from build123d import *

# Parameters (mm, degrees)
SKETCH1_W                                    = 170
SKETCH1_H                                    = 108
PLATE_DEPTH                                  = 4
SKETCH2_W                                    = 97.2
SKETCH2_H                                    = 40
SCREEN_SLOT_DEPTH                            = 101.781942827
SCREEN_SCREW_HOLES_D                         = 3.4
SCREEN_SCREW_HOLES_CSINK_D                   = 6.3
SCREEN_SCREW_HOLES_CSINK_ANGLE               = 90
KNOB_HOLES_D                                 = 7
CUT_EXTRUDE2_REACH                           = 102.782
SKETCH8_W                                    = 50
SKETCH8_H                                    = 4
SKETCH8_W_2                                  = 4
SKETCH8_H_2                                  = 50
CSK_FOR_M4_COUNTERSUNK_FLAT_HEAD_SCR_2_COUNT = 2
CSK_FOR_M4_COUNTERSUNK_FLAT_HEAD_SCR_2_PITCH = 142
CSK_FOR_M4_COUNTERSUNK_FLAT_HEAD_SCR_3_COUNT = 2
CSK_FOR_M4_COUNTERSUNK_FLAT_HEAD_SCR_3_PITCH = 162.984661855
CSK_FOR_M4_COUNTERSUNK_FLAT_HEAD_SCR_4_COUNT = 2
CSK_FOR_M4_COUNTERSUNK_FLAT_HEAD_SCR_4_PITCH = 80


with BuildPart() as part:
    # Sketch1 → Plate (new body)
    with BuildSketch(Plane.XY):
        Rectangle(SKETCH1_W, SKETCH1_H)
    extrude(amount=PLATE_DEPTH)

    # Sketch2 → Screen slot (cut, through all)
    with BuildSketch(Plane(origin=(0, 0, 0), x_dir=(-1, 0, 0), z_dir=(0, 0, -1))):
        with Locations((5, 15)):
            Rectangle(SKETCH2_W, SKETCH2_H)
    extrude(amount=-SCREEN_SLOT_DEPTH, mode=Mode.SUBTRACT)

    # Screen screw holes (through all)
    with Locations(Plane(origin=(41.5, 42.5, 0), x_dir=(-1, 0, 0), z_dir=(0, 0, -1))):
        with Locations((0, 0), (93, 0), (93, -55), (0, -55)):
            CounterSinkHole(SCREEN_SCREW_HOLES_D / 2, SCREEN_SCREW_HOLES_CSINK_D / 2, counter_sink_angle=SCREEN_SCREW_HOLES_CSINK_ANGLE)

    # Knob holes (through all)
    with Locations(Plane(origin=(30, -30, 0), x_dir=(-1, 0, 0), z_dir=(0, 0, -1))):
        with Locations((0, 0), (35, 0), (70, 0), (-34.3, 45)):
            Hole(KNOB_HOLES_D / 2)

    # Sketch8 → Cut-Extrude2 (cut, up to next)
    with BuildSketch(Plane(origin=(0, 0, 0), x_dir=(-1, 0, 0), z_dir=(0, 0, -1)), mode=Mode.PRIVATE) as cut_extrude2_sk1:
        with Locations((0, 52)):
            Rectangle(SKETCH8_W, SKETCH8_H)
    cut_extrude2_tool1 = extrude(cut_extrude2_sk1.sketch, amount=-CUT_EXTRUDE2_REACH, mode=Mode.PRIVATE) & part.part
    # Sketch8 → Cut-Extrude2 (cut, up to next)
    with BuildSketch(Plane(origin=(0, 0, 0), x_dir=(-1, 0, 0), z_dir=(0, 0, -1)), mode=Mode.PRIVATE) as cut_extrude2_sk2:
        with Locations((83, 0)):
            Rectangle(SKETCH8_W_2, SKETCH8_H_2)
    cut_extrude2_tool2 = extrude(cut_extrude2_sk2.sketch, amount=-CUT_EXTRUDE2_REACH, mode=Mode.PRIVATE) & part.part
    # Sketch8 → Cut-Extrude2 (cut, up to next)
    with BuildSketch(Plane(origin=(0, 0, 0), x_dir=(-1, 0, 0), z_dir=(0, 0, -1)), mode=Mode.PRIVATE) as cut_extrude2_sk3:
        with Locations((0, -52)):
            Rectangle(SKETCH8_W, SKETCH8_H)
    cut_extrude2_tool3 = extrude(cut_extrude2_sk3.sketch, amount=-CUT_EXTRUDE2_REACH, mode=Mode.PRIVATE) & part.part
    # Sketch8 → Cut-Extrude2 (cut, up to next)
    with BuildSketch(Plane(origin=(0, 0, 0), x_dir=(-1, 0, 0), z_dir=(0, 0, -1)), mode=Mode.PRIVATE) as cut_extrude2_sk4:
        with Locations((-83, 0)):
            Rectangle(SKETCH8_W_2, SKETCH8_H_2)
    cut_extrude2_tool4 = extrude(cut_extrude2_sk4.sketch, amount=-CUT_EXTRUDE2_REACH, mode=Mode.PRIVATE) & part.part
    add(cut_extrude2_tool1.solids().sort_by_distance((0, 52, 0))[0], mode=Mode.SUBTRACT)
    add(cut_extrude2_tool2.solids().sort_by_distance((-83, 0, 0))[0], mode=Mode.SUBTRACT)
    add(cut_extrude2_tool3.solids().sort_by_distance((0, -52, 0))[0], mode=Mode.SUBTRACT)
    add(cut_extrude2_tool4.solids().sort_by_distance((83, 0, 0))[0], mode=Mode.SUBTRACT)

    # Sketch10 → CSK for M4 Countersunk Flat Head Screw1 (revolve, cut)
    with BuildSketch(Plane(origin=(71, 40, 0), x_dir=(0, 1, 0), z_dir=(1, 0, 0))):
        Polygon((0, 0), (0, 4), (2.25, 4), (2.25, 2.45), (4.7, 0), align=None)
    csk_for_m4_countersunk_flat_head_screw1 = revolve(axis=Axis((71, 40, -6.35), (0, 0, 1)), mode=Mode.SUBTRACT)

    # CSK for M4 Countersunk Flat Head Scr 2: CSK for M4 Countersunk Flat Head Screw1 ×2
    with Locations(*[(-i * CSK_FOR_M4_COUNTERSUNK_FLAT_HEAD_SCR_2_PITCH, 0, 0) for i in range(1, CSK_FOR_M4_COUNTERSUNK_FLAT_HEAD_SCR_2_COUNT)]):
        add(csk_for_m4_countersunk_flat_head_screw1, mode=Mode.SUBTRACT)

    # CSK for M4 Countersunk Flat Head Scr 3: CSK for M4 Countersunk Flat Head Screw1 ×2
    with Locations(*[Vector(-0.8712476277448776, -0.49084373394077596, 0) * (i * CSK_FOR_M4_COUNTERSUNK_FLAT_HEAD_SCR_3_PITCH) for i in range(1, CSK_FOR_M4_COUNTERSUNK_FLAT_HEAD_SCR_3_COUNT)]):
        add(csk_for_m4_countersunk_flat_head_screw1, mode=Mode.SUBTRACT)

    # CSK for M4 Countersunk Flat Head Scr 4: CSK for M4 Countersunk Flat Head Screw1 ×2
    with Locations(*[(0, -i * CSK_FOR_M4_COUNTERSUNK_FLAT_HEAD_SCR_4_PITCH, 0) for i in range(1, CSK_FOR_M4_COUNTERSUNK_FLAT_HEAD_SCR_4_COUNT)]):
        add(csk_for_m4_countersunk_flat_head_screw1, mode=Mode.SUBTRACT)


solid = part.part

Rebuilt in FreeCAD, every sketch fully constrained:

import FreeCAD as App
import Part
import Sketcher

V = App.Vector
Q = App.Units.Quantity

doc = App.newDocument("Part")
body = doc.addObject("PartDesign::Body", "Body")

sketch1 = body.newObject("Sketcher::SketchObject", "Sketch")
sketch1.AttachmentSupport = (doc.getObject("XY_Plane"), [""])
sketch1.MapMode = "FlatFace"
sketch1.addGeometry(Part.LineSegment(V(-85, 54, 0), V(-85, -54, 0)), False)
sketch1.addGeometry(Part.LineSegment(V(-85, -54, 0), V(85, -54, 0)), False)
sketch1.addGeometry(Part.LineSegment(V(85, -54, 0), V(85, 54, 0)), False)
sketch1.addGeometry(Part.LineSegment(V(85, 54, 0), V(-85, 54, 0)), False)
sketch1.addConstraint(Sketcher.Constraint("Coincident", 0, 2, 1, 1))
sketch1.addConstraint(Sketcher.Constraint("Coincident", 1, 2, 2, 1))
sketch1.addConstraint(Sketcher.Constraint("Coincident", 2, 2, 3, 1))
sketch1.addConstraint(Sketcher.Constraint("Coincident", 3, 2, 0, 1))
sketch1.addConstraint(Sketcher.Constraint("Vertical", 0))
sketch1.addConstraint(Sketcher.Constraint("Horizontal", 1))
sketch1.addConstraint(Sketcher.Constraint("Vertical", 2))
sketch1.addConstraint(Sketcher.Constraint("Horizontal", 3))
sketch1.addConstraint(Sketcher.Constraint("Symmetric", 0, 2, 2, 2, -1, 1))
sketch1.addConstraint(Sketcher.Constraint("DistanceX", 1, 1, 1, 2, Q("170 mm")))
sketch1.addConstraint(Sketcher.Constraint("DistanceY", 0, 2, 0, 1, Q("108 mm")))
pad1 = body.newObject("PartDesign::Pad", "Pad")
pad1.Profile = sketch1
pad1.Length = 4

sketch2 = body.newObject("Sketcher::SketchObject", "Sketch001")
sketch2.AttachmentSupport = (doc.getObject("XY_Plane"), [""])
sketch2.MapMode = "FlatFace"
sketch2.addGeometry(Part.LineSegment(V(43.6, 35, 0), V(43.6, -5, 0)), False)
sketch2.addGeometry(Part.LineSegment(V(43.6, -5, 0), V(-53.6, -5, 0)), False)
sketch2.addGeometry(Part.LineSegment(V(-53.6, -5, 0), V(-53.6, 35, 0)), False)
sketch2.addGeometry(Part.LineSegment(V(-53.6, 35, 0), V(43.6, 35, 0)), False)
sketch2.addConstraint(Sketcher.Constraint("Coincident", 0, 2, 1, 1))
sketch2.addConstraint(Sketcher.Constraint("Coincident", 1, 2, 2, 1))
sketch2.addConstraint(Sketcher.Constraint("Coincident", 2, 2, 3, 1))
sketch2.addConstraint(Sketcher.Constraint("Coincident", 3, 2, 0, 1))
sketch2.addConstraint(Sketcher.Constraint("Vertical", 0))
sketch2.addConstraint(Sketcher.Constraint("Horizontal", 1))
sketch2.addConstraint(Sketcher.Constraint("Vertical", 2))
sketch2.addConstraint(Sketcher.Constraint("Horizontal", 3))
sketch2.addConstraint(Sketcher.Constraint("DistanceY", 0, 2, 0, 1, Q("40 mm")))
sketch2.addConstraint(Sketcher.Constraint("DistanceX", 1, 2, 1, 1, Q("97.2 mm")))
sketch2.addConstraint(Sketcher.Constraint("DistanceY", 0, 2, -1, 1, Q("5 mm")))
sketch2.addConstraint(Sketcher.Constraint("DistanceX", -1, 1, 0, 2, Q("43.6 mm")))
pocket1 = body.newObject("PartDesign::Pocket", "Pocket")
pocket1.Profile = sketch2
pocket1.Type = "ThroughAll"
pocket1.Reversed = True

sketch3 = body.newObject("Sketcher::SketchObject", "Sketch002")
sketch3.AttachmentSupport = (doc.getObject("XY_Plane"), [""])
sketch3.MapMode = "FlatFace"
sketch3.addGeometry(Part.Circle(V(41.5, 42.5, 0), V(0, 0, 1), 1.7), False)
sketch3.addGeometry(Part.Circle(V(-51.5, 42.5, 0), V(0, 0, 1), 1.7), False)
sketch3.addGeometry(Part.Circle(V(-51.5, -12.5, 0), V(0, 0, 1), 1.7), False)
sketch3.addGeometry(Part.Circle(V(41.5, -12.5, 0), V(0, 0, 1), 1.7), False)
sketch3.addConstraint(Sketcher.Constraint("Equal", 0, 1))
sketch3.addConstraint(Sketcher.Constraint("Equal", 1, 2))
sketch3.addConstraint(Sketcher.Constraint("Equal", 2, 3))
sketch3.addConstraint(Sketcher.Constraint("Horizontal", 0, 3, 1, 3))
sketch3.addConstraint(Sketcher.Constraint("Horizontal", 2, 3, 3, 3))
sketch3.addConstraint(Sketcher.Constraint("Vertical", 1, 3, 2, 3))
sketch3.addConstraint(Sketcher.Constraint("Vertical", 0, 3, 3, 3))
sketch3.addConstraint(Sketcher.Constraint("Diameter", 0, Q("3.4 mm")))
sketch3.addConstraint(Sketcher.Constraint("DistanceX", 1, 3, 0, 3, Q("93 mm")))
sketch3.addConstraint(Sketcher.Constraint("DistanceY", 2, 3, 1, 3, Q("55 mm")))
sketch3.addConstraint(Sketcher.Constraint("DistanceX", -1, 1, 0, 3, Q("41.5 mm")))
sketch3.addConstraint(Sketcher.Constraint("DistanceY", -1, 1, 0, 3, Q("42.5 mm")))
doc.recompute()
hole = body.newObject("PartDesign::Hole", "Hole")
hole.Profile = sketch3
hole.ThreadType = "None"
hole.Diameter = 3.4
hole.DepthType = "ThroughAll"
hole.HoleCutType = "Countersink"
hole.HoleCutDiameter = 6.3
hole.HoleCutCountersinkAngle = 90
hole.Reversed = True

sketch4 = body.newObject("Sketcher::SketchObject", "Sketch003")
sketch4.AttachmentSupport = (doc.getObject("XY_Plane"), [""])
sketch4.MapMode = "FlatFace"
sketch4.addGeometry(Part.Circle(V(30, -30, 0), V(0, 0, 1), 3.5), False)
sketch4.addGeometry(Part.Circle(V(-5, -30, 0), V(0, 0, 1), 3.5), False)
sketch4.addGeometry(Part.Circle(V(-40, -30, 0), V(0, 0, 1), 3.5), False)
sketch4.addGeometry(Part.Circle(V(64.3, 15, 0), V(0, 0, 1), 3.5), False)
sketch4.addConstraint(Sketcher.Constraint("Equal", 0, 1))
sketch4.addConstraint(Sketcher.Constraint("Equal", 1, 2))
sketch4.addConstraint(Sketcher.Constraint("Equal", 2, 3))
sketch4.addConstraint(Sketcher.Constraint("Horizontal", 0, 3, 1, 3))
sketch4.addConstraint(Sketcher.Constraint("Horizontal", 1, 3, 2, 3))
sketch4.addConstraint(Sketcher.Constraint("Diameter", 0, Q("7 mm")))
sketch4.addConstraint(Sketcher.Constraint("DistanceX", -1, 1, 0, 3, Q("30 mm")))
sketch4.addConstraint(Sketcher.Constraint("DistanceY", 0, 3, -1, 1, Q("30 mm")))
sketch4.addConstraint(Sketcher.Constraint("DistanceX", 1, 3, -1, 1, Q("5 mm")))
sketch4.addConstraint(Sketcher.Constraint("DistanceX", 2, 3, -1, 1, Q("40 mm")))
sketch4.addConstraint(Sketcher.Constraint("DistanceY", -1, 1, 3, 3, Q("15 mm")))
sketch4.addConstraint(Sketcher.Constraint("DistanceX", -1, 1, 3, 3, Q("64.3 mm")))
doc.recompute()
hole2 = body.newObject("PartDesign::Hole", "Hole001")
hole2.Profile = sketch4
hole2.ThreadType = "None"
hole2.Diameter = 7
hole2.DepthType = "ThroughAll"
hole2.Reversed = True

sketch5 = body.newObject("Sketcher::SketchObject", "Sketch004")
sketch5.AttachmentSupport = (doc.getObject("XY_Plane"), [""])
sketch5.MapMode = "FlatFace"
sketch5.addGeometry(Part.LineSegment(V(25, 54, 0), V(25, 50, 0)), False)
sketch5.addGeometry(Part.LineSegment(V(25, 50, 0), V(-25, 50, 0)), False)
sketch5.addGeometry(Part.LineSegment(V(-25, 50, 0), V(-25, 54, 0)), False)
sketch5.addGeometry(Part.LineSegment(V(-25, 54, 0), V(25, 54, 0)), False)
sketch5.addConstraint(Sketcher.Constraint("Coincident", 0, 2, 1, 1))
sketch5.addConstraint(Sketcher.Constraint("Coincident", 1, 2, 2, 1))
sketch5.addConstraint(Sketcher.Constraint("Coincident", 2, 2, 3, 1))
sketch5.addConstraint(Sketcher.Constraint("Coincident", 3, 2, 0, 1))
sketch5.addConstraint(Sketcher.Constraint("Vertical", 0))
sketch5.addConstraint(Sketcher.Constraint("Horizontal", 1))
sketch5.addConstraint(Sketcher.Constraint("Vertical", 2))
sketch5.addConstraint(Sketcher.Constraint("Horizontal", 3))
sketch5.addConstraint(Sketcher.Constraint("DistanceX", 1, 2, 1, 1, Q("50 mm")))
sketch5.addConstraint(Sketcher.Constraint("DistanceY", 0, 2, 0, 1, Q("4 mm")))
sketch5.addConstraint(Sketcher.Constraint("DistanceX", -1, 1, 0, 2, Q("25 mm")))
sketch5.addConstraint(Sketcher.Constraint("DistanceY", -1, 1, 0, 2, Q("50 mm")))
pocket2 = body.newObject("PartDesign::Pocket", "Pocket001")
pocket2.Profile = sketch5
pocket2.Type = "UpToFirst"
pocket2.Reversed = True

sketch6 = body.newObject("Sketcher::SketchObject", "Sketch005")
sketch6.AttachmentSupport = (doc.getObject("XY_Plane"), [""])
sketch6.MapMode = "FlatFace"
sketch6.addGeometry(Part.LineSegment(V(-81, 25, 0), V(-81, -25, 0)), False)
sketch6.addGeometry(Part.LineSegment(V(-81, -25, 0), V(-85, -25, 0)), False)
sketch6.addGeometry(Part.LineSegment(V(-85, -25, 0), V(-85, 25, 0)), False)
sketch6.addGeometry(Part.LineSegment(V(-85, 25, 0), V(-81, 25, 0)), False)
sketch6.addConstraint(Sketcher.Constraint("Coincident", 0, 2, 1, 1))
sketch6.addConstraint(Sketcher.Constraint("Coincident", 1, 2, 2, 1))
sketch6.addConstraint(Sketcher.Constraint("Coincident", 2, 2, 3, 1))
sketch6.addConstraint(Sketcher.Constraint("Coincident", 3, 2, 0, 1))
sketch6.addConstraint(Sketcher.Constraint("Vertical", 0))
sketch6.addConstraint(Sketcher.Constraint("Horizontal", 1))
sketch6.addConstraint(Sketcher.Constraint("Vertical", 2))
sketch6.addConstraint(Sketcher.Constraint("Horizontal", 3))
sketch6.addConstraint(Sketcher.Constraint("DistanceX", 1, 2, 1, 1, Q("4 mm")))
sketch6.addConstraint(Sketcher.Constraint("DistanceY", 0, 2, 0, 1, Q("50 mm")))
sketch6.addConstraint(Sketcher.Constraint("DistanceX", 0, 2, -1, 1, Q("81 mm")))
sketch6.addConstraint(Sketcher.Constraint("DistanceY", 0, 2, -1, 1, Q("25 mm")))
pocket3 = body.newObject("PartDesign::Pocket", "Pocket002")
pocket3.Profile = sketch6
pocket3.Type = "UpToFirst"
pocket3.Reversed = True

sketch7 = body.newObject("Sketcher::SketchObject", "Sketch006")
sketch7.AttachmentSupport = (doc.getObject("XY_Plane"), [""])
sketch7.MapMode = "FlatFace"
sketch7.addGeometry(Part.LineSegment(V(25, -50, 0), V(25, -54, 0)), False)
sketch7.addGeometry(Part.LineSegment(V(25, -54, 0), V(-25, -54, 0)), False)
sketch7.addGeometry(Part.LineSegment(V(-25, -54, 0), V(-25, -50, 0)), False)
sketch7.addGeometry(Part.LineSegment(V(-25, -50, 0), V(25, -50, 0)), False)
sketch7.addConstraint(Sketcher.Constraint("Coincident", 0, 2, 1, 1))
sketch7.addConstraint(Sketcher.Constraint("Coincident", 1, 2, 2, 1))
sketch7.addConstraint(Sketcher.Constraint("Coincident", 2, 2, 3, 1))
sketch7.addConstraint(Sketcher.Constraint("Coincident", 3, 2, 0, 1))
sketch7.addConstraint(Sketcher.Constraint("Vertical", 0))
sketch7.addConstraint(Sketcher.Constraint("Horizontal", 1))
sketch7.addConstraint(Sketcher.Constraint("Vertical", 2))
sketch7.addConstraint(Sketcher.Constraint("Horizontal", 3))
sketch7.addConstraint(Sketcher.Constraint("DistanceX", 1, 2, 1, 1, Q("50 mm")))
sketch7.addConstraint(Sketcher.Constraint("DistanceY", 0, 2, 0, 1, Q("4 mm")))
sketch7.addConstraint(Sketcher.Constraint("DistanceX", -1, 1, 0, 2, Q("25 mm")))
sketch7.addConstraint(Sketcher.Constraint("DistanceY", 0, 2, -1, 1, Q("54 mm")))
pocket4 = body.newObject("PartDesign::Pocket", "Pocket003")
pocket4.Profile = sketch7
pocket4.Type = "UpToFirst"
pocket4.Reversed = True

sketch8 = body.newObject("Sketcher::SketchObject", "Sketch007")
sketch8.AttachmentSupport = (doc.getObject("XY_Plane"), [""])
sketch8.MapMode = "FlatFace"
sketch8.addGeometry(Part.LineSegment(V(85, 25, 0), V(85, -25, 0)), False)
sketch8.addGeometry(Part.LineSegment(V(85, -25, 0), V(81, -25, 0)), False)
sketch8.addGeometry(Part.LineSegment(V(81, -25, 0), V(81, 25, 0)), False)
sketch8.addGeometry(Part.LineSegment(V(81, 25, 0), V(85, 25, 0)), False)
sketch8.addConstraint(Sketcher.Constraint("Coincident", 0, 2, 1, 1))
sketch8.addConstraint(Sketcher.Constraint("Coincident", 1, 2, 2, 1))
sketch8.addConstraint(Sketcher.Constraint("Coincident", 2, 2, 3, 1))
sketch8.addConstraint(Sketcher.Constraint("Coincident", 3, 2, 0, 1))
sketch8.addConstraint(Sketcher.Constraint("Vertical", 0))
sketch8.addConstraint(Sketcher.Constraint("Horizontal", 1))
sketch8.addConstraint(Sketcher.Constraint("Vertical", 2))
sketch8.addConstraint(Sketcher.Constraint("Horizontal", 3))
sketch8.addConstraint(Sketcher.Constraint("DistanceX", 1, 2, 1, 1, Q("4 mm")))
sketch8.addConstraint(Sketcher.Constraint("DistanceY", 0, 2, 0, 1, Q("50 mm")))
sketch8.addConstraint(Sketcher.Constraint("DistanceX", -1, 1, 0, 2, Q("85 mm")))
sketch8.addConstraint(Sketcher.Constraint("DistanceY", 0, 2, -1, 1, Q("25 mm")))
pocket5 = body.newObject("PartDesign::Pocket", "Pocket004")
pocket5.Profile = sketch8
pocket5.Type = "UpToFirst"
pocket5.Reversed = True

sketch9 = body.newObject("Sketcher::SketchObject", "Sketch008")
sketch9.AttachmentSupport = (doc.getObject("YZ_Plane"), [""])
sketch9.MapMode = "FlatFace"
sketch9.AttachmentOffset = App.Placement(V(0, 0, 71), App.Rotation())
sketch9.addGeometry(Part.LineSegment(V(40, 4, 0), V(40, 0, 0)), False)
sketch9.addGeometry(Part.LineSegment(V(40, 0, 0), V(44.7, 0, 0)), False)
sketch9.addGeometry(Part.LineSegment(V(44.7, 0, 0), V(42.25, 2.45, 0)), False)
sketch9.addGeometry(Part.LineSegment(V(42.25, 2.45, 0), V(42.25, 4, 0)), False)
sketch9.addGeometry(Part.LineSegment(V(42.25, 4, 0), V(40, 4, 0)), False)
sketch9.addGeometry(Part.LineSegment(V(40, 0, 0), V(40, 4, 0)), True)
sketch9.addConstraint(Sketcher.Constraint("Coincident", 0, 2, 1, 1))
sketch9.addConstraint(Sketcher.Constraint("Coincident", 1, 2, 2, 1))
sketch9.addConstraint(Sketcher.Constraint("Coincident", 2, 2, 3, 1))
sketch9.addConstraint(Sketcher.Constraint("Coincident", 3, 2, 4, 1))
sketch9.addConstraint(Sketcher.Constraint("Coincident", 4, 2, 0, 1))
sketch9.addConstraint(Sketcher.Constraint("Vertical", 0))
sketch9.addConstraint(Sketcher.Constraint("Horizontal", 1))
sketch9.addConstraint(Sketcher.Constraint("Vertical", 3))
sketch9.addConstraint(Sketcher.Constraint("Horizontal", 4))
sketch9.addConstraint(Sketcher.Constraint("Vertical", 5))
sketch9.addConstraint(Sketcher.Constraint("Coincident", 5, 1, 0, 2))
sketch9.addConstraint(Sketcher.Constraint("PointOnObject", 0, 2, -1))
sketch9.addConstraint(Sketcher.Constraint("Horizontal", 3, 2, 5, 2))
sketch9.addConstraint(Sketcher.Constraint("DistanceY", 0, 2, 0, 1, Q("4 mm")))
sketch9.addConstraint(Sketcher.Constraint("Angle", 2, Q("135 deg")))
sketch9.addConstraint(Sketcher.Constraint("DistanceX", 1, 1, 1, 2, Q("4.7 mm")))
sketch9.addConstraint(Sketcher.Constraint("DistanceX", -1, 1, 0, 2, Q("40 mm")))
sketch9.addConstraint(Sketcher.Constraint("DistanceX", 4, 2, 4, 1, Q("2.25 mm")))
groove = body.newObject("PartDesign::Groove", "Groove")
groove.Profile = sketch9
groove.ReferenceAxis = (sketch9, ["Axis0"])
groove.Angle = 360
doc.recompute()

linearpattern = body.newObject("PartDesign::LinearPattern", "LinearPattern")
linearpattern.Originals = [groove]
linearpattern.Direction = (doc.getObject("X_Axis"), [""])
linearpattern.Mode = "offset"
linearpattern.Offset = 142
linearpattern.Occurrences = 2
linearpattern.Reversed = True
body.Tip = linearpattern
doc.recompute()

datumline = body.newObject("PartDesign::Line", "DatumLine")
datumline.Placement = App.Placement(V(0, 0, 0), App.Rotation(V(0, 0, 1), V(-0.871247628, -0.490843734, 0)))
linearpattern2 = body.newObject("PartDesign::LinearPattern", "LinearPattern001")
linearpattern2.Originals = [groove]
linearpattern2.Direction = (datumline, [""])
linearpattern2.Mode = "offset"
linearpattern2.Offset = 162.984662
linearpattern2.Occurrences = 2
body.Tip = linearpattern2
doc.recompute()

linearpattern3 = body.newObject("PartDesign::LinearPattern", "LinearPattern002")
linearpattern3.Originals = [groove]
linearpattern3.Direction = (doc.getObject("Y_Axis"), [""])
linearpattern3.Mode = "offset"
linearpattern3.Offset = 80
linearpattern3.Occurrences = 2
linearpattern3.Reversed = True
body.Tip = linearpattern3

doc.recompute()
